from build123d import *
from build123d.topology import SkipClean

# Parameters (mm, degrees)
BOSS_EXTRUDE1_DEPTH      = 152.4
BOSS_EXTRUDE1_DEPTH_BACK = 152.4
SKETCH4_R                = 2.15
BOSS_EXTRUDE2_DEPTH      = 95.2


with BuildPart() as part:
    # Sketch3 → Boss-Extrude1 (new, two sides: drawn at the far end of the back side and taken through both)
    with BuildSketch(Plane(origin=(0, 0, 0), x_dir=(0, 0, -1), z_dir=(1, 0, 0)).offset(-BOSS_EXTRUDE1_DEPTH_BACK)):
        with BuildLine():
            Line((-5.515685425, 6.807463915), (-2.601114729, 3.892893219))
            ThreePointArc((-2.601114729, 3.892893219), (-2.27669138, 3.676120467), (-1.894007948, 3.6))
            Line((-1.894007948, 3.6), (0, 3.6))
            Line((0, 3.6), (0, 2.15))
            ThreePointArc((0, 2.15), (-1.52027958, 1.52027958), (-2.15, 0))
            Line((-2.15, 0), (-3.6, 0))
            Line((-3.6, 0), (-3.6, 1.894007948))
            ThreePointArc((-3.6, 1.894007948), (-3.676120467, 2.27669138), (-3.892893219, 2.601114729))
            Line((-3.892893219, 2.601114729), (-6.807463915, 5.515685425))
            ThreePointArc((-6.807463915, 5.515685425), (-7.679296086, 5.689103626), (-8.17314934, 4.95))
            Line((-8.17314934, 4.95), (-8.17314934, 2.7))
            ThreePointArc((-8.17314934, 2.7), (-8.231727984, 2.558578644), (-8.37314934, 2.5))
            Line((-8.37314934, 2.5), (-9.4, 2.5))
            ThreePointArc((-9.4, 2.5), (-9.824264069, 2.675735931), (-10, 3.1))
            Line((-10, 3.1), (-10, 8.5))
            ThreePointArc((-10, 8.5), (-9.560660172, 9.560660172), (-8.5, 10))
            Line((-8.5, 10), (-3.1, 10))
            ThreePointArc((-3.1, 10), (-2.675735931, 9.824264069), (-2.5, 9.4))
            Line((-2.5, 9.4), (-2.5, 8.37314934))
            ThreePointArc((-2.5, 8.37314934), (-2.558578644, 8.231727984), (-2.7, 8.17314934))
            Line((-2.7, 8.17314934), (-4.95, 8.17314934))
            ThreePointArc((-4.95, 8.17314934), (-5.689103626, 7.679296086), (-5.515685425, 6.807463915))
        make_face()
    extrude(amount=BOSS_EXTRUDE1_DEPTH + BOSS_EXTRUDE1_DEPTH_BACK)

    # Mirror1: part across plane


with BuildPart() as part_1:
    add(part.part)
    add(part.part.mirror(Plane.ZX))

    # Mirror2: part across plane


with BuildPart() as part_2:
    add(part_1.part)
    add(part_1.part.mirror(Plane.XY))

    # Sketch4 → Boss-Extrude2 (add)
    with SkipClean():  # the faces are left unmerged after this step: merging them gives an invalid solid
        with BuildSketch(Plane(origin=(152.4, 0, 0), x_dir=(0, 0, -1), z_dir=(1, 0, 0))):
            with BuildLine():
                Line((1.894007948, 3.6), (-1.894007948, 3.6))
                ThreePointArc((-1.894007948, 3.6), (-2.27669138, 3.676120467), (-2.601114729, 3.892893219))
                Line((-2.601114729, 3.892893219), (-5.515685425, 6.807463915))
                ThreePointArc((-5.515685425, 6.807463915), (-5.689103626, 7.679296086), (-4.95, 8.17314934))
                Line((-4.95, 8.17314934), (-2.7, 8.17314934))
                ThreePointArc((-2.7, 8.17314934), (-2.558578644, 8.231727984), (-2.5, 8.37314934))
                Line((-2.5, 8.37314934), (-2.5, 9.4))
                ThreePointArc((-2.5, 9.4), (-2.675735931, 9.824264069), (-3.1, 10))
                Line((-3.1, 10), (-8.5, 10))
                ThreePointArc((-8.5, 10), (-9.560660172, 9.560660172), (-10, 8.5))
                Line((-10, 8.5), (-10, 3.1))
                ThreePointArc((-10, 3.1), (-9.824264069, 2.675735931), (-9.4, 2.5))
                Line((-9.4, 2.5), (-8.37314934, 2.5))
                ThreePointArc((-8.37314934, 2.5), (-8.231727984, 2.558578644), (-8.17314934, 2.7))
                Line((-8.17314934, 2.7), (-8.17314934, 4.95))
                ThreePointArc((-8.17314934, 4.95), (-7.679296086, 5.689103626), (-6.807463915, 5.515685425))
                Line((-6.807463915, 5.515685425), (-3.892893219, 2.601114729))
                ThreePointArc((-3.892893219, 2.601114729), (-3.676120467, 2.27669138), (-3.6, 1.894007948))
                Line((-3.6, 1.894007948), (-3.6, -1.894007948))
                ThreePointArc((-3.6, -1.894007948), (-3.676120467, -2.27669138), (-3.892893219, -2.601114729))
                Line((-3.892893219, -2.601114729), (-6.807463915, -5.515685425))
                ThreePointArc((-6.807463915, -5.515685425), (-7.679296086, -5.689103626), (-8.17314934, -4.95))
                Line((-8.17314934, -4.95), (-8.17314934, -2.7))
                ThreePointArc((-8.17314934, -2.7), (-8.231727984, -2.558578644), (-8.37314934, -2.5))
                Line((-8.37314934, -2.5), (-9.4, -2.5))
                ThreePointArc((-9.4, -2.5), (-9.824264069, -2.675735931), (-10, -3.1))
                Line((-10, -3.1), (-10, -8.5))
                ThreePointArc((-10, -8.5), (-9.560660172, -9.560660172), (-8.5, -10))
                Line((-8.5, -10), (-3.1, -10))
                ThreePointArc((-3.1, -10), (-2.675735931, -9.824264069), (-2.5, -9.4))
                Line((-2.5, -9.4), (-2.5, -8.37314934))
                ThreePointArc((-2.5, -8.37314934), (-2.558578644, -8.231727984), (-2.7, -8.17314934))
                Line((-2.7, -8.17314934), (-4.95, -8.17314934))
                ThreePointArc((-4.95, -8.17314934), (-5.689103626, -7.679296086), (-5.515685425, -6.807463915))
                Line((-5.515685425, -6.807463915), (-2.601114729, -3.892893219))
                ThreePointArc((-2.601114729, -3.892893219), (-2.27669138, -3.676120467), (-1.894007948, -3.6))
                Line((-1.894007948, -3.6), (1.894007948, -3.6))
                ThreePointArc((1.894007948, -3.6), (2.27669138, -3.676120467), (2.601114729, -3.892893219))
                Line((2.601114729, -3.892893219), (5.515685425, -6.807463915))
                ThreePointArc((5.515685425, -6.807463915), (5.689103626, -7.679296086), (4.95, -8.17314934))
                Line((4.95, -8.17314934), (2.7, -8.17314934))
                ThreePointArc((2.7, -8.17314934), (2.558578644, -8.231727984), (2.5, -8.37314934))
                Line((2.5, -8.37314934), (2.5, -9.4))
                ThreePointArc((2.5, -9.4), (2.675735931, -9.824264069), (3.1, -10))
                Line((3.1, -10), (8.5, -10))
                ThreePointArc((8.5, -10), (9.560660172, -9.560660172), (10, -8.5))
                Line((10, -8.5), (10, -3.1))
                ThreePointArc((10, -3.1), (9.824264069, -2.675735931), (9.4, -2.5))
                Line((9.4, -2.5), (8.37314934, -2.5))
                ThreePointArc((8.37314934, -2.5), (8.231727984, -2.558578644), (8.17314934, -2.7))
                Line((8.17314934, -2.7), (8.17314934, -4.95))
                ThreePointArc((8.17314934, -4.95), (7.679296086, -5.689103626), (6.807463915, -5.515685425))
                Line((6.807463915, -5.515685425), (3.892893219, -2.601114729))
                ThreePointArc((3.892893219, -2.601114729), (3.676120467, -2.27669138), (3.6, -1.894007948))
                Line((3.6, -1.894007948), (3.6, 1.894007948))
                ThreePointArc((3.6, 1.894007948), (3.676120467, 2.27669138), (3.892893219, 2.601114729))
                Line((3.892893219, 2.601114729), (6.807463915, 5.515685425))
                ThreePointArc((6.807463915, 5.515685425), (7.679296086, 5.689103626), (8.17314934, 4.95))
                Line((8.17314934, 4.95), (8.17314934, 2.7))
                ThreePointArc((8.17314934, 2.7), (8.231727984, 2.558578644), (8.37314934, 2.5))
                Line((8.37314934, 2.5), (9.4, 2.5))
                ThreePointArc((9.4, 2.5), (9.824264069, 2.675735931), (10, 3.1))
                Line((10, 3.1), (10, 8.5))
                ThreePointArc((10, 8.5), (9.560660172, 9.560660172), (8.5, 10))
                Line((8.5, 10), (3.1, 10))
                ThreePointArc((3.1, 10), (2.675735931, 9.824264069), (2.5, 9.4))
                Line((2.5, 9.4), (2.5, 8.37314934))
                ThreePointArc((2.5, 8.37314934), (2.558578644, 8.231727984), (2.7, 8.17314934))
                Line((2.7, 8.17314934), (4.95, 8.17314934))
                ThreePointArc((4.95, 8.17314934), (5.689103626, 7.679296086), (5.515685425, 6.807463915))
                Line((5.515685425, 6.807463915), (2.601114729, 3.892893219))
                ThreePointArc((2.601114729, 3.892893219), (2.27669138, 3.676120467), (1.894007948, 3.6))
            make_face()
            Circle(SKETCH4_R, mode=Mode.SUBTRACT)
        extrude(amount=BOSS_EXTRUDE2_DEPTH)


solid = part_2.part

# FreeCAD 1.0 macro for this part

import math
import FreeCAD as App
import Part
import Sketcher

V = App.Vector
Q = App.Units.Quantity

doc = App.newDocument("Part")
body = doc.addObject("PartDesign::Body", "Body")

# Sketch on YZ plane
sketch1 = body.newObject("Sketcher::SketchObject", "Sketch")
sketch1.AttachmentSupport = (doc.getObject("YZ_Plane"), [""])
sketch1.MapMode = "FlatFace"
sketch1.addGeometry([
    Part.LineSegment(V(3.89, 2.6, 0), V(6.81, 5.52, 0)),  # 0
    Part.ArcOfCircle(Part.Circle(V(7.37, 4.95, 0), V(0, 0, 1), 0.8), math.radians(0), math.radians(135)),  # 1
    Part.LineSegment(V(8.17, 4.95, 0), V(8.17, 2.7, 0)),  # 2
    Part.ArcOfCircle(Part.Circle(V(8.37, 2.7, 0), V(0, 0, 1), 0.2), math.radians(-180), math.radians(-90)),  # 3
    Part.LineSegment(V(8.37, 2.5, 0), V(9.4, 2.5, 0)),  # 4
    Part.ArcOfCircle(Part.Circle(V(9.4, 3.1, 0), V(0, 0, 1), 0.6), math.radians(-90), math.radians(0)),  # 5
    Part.LineSegment(V(10, 3.1, 0), V(10, 8.5, 0)),  # 6
    Part.ArcOfCircle(Part.Circle(V(8.5, 8.5, 0), V(0, 0, 1), 1.5), math.radians(0), math.radians(90)),  # 7
    Part.LineSegment(V(8.5, 10, 0), V(3.1, 10, 0)),  # 8
    Part.ArcOfCircle(Part.Circle(V(3.1, 9.4, 0), V(0, 0, 1), 0.6), math.radians(90), math.radians(180)),  # 9
    Part.LineSegment(V(2.5, 9.4, 0), V(2.5, 8.37, 0)),  # 10
    Part.ArcOfCircle(Part.Circle(V(2.7, 8.37, 0), V(0, 0, 1), 0.2), math.radians(-180), math.radians(-90)),  # 11
    Part.LineSegment(V(2.7, 8.17, 0), V(4.95, 8.17, 0)),  # 12
    Part.ArcOfCircle(Part.Circle(V(4.95, 7.37, 0), V(0, 0, 1), 0.8), math.radians(-45), math.radians(90)),  # 13
    Part.LineSegment(V(5.52, 6.81, 0), V(2.6, 3.89, 0)),  # 14
    Part.ArcOfCircle(Part.Circle(V(1.89, 4.6, 0), V(0, 0, 1), 1), math.radians(-90), math.radians(-45)),  # 15
    Part.LineSegment(V(1.89, 3.6, 0), V(0, 3.6, 0)),  # 16
    Part.LineSegment(V(0, 3.6, 0), V(0, 2.15, 0)),  # 17
    Part.ArcOfCircle(Part.Circle(V(0, 0, 0), V(0, 0, 1), 2.15), math.radians(0), math.radians(90)),  # 18
    Part.LineSegment(V(2.15, 0, 0), V(3.6, 0, 0)),  # 19
    Part.LineSegment(V(3.6, 0, 0), V(3.6, 1.89, 0)),  # 20
    Part.ArcOfCircle(Part.Circle(V(4.6, 1.89, 0), V(0, 0, 1), 1), math.radians(135), math.radians(180)),  # 21
], False)
sketch1.addConstraint([
    Sketcher.Constraint("Tangent", 0, 2, 1, 2),
    Sketcher.Constraint("Tangent", 1, 1, 2, 1),
    Sketcher.Constraint("Tangent", 2, 2, 3, 1),
    Sketcher.Constraint("Tangent", 3, 2, 4, 1),
    Sketcher.Constraint("Tangent", 4, 2, 5, 1),
    Sketcher.Constraint("Tangent", 5, 2, 6, 1),
    Sketcher.Constraint("Tangent", 6, 2, 7, 1),
    Sketcher.Constraint("Tangent", 7, 2, 8, 1),
    Sketcher.Constraint("Tangent", 8, 2, 9, 1),
    Sketcher.Constraint("Tangent", 9, 2, 10, 1),
    Sketcher.Constraint("Tangent", 10, 2, 11, 1),
    Sketcher.Constraint("Tangent", 11, 2, 12, 1),
    Sketcher.Constraint("Tangent", 12, 2, 13, 2),
    Sketcher.Constraint("Tangent", 13, 1, 14, 1),
    Sketcher.Constraint("Tangent", 14, 2, 15, 2),
    Sketcher.Constraint("Tangent", 15, 1, 16, 1),
    Sketcher.Constraint("Coincident", 16, 2, 17, 1),
    Sketcher.Constraint("Coincident", 17, 2, 18, 2),
    Sketcher.Constraint("Coincident", 18, 1, 19, 1),
    Sketcher.Constraint("Coincident", 19, 2, 20, 1),
    Sketcher.Constraint("Tangent", 20, 2, 21, 2),
    Sketcher.Constraint("Tangent", 21, 1, 0, 1),
    Sketcher.Constraint("Vertical", 2),
    Sketcher.Constraint("Horizontal", 4),
    Sketcher.Constraint("Vertical", 6),
    Sketcher.Constraint("Horizontal", 8),
    Sketcher.Constraint("Vertical", 10),
    Sketcher.Constraint("Horizontal", 12),
    Sketcher.Constraint("Horizontal", 16),
    Sketcher.Constraint("Vertical", 17),
    Sketcher.Constraint("Horizontal", 19),
    Sketcher.Constraint("Vertical", 20),
    Sketcher.Constraint("Coincident", 18, 3, -1, 1),
    Sketcher.Constraint("Equal", 5, 9),
    Sketcher.Constraint("Equal", 3, 11),
    Sketcher.Constraint("Equal", 1, 13),
    Sketcher.Constraint("Equal", 15, 21),
    Sketcher.Constraint("PointOnObject", 16, 2, -2),
    Sketcher.Constraint("PointOnObject", 18, 1, -1),
    Sketcher.Constraint("Parallel", 0, 14),
    Sketcher.Constraint("Equal", 12, 2),
    Sketcher.Constraint("Equal", 8, 6),
    Sketcher.Constraint("Equal", 4, 10),
    Sketcher.Constraint("Equal", 19, 17),
    Sketcher.Constraint("Equal", 16, 20),
    Sketcher.Constraint("Equal", 0, 14),
    Sketcher.Constraint("Radius", 15, Q("1 mm")),
    Sketcher.Constraint("Radius", 1, Q("0.8 mm")),
    Sketcher.Constraint("Radius", 3, Q("0.2 mm")),
    Sketcher.Constraint("Radius", 5, Q("0.6 mm")),
    Sketcher.Constraint("Radius", 7, Q("1.5 mm")),
    Sketcher.Constraint("Radius", 18, Q("2.15 mm")),
    Sketcher.Constraint("DistanceX", 8, 2, 8, 1, Q("5.4 mm")),
    Sketcher.Constraint("DistanceX", -1, 1, 5, 2, Q("10 mm")),
    Sketcher.Constraint("DistanceX", 12, 1, 12, 2, Q("2.25 mm")),
    Sketcher.Constraint("DistanceX", 19, 1, 19, 2, Q("1.45 mm")),
    Sketcher.Constraint("DistanceX", 4, 1, 4, 2, Q("1.026851 mm")),
])
pad1 = body.newObject("PartDesign::Pad", "Pad")
pad1.Profile = sketch1
pad1.Type = "TwoLengths"
pad1.Length = 152.4
pad1.Length2 = 152.4
body2 = doc.addObject("PartDesign::Body", "Body001")
doc.recompute()

body2.BaseFeature = body
doc.recompute()

mirroring = doc.addObject("Part::Mirroring", "Mirroring")
mirroring.Source = body
mirroring.Base = V(0, 0, 0)
mirroring.Normal = V(0, 1, 0)
body3 = doc.addObject("PartDesign::Body", "Body002")
body3.BaseFeature = mirroring
boolean = body2.newObject("PartDesign::Boolean", "Boolean")
boolean.Type = "Fuse"
boolean.addObjects([body3])
doc.recompute()
body4 = doc.addObject("PartDesign::Body", "Body003")
doc.recompute()

body4.BaseFeature = body2
doc.recompute()

mirroring2 = doc.addObject("Part::Mirroring", "Mirroring001")
mirroring2.Source = body2
mirroring2.Base = V(0, 0, 0)
mirroring2.Normal = V(0, 0, 1)
body5 = doc.addObject("PartDesign::Body", "Body004")
body5.BaseFeature = mirroring2
boolean2 = body4.newObject("PartDesign::Boolean", "Boolean001")
boolean2.Type = "Fuse"
boolean2.addObjects([body5])
doc.recompute()

# Sketch on YZ plane
sketch2 = body4.newObject("Sketcher::SketchObject", "Sketch001")
sketch2.AttachmentSupport = (doc.getObject("YZ_Plane003"), [""])
sketch2.MapMode = "FlatFace"
sketch2.AttachmentOffset = App.Placement(V(0, 0, 152.4), App.Rotation())
sketch2.addGeometry([
    Part.LineSegment(V(3.6, -1.89, 0), V(3.6, 1.89, 0)),  # 0
    Part.ArcOfCircle(Part.Circle(V(4.6, 1.89, 0), V(0, 0, 1), 1), math.radians(135), math.radians(180)),  # 1
    Part.LineSegment(V(3.89, 2.6, 0), V(6.81, 5.52, 0)),  # 2
    Part.ArcOfCircle(Part.Circle(V(7.37, 4.95, 0), V(0, 0, 1), 0.8), math.radians(0), math.radians(135)),  # 3
    Part.LineSegment(V(8.17, 4.95, 0), V(8.17, 2.7, 0)),  # 4
    Part.ArcOfCircle(Part.Circle(V(8.37, 2.7, 0), V(0, 0, 1), 0.2), math.radians(-180), math.radians(-90)),  # 5
    Part.LineSegment(V(8.37, 2.5, 0), V(9.4, 2.5, 0)),  # 6
    Part.ArcOfCircle(Part.Circle(V(9.4, 3.1, 0), V(0, 0, 1), 0.6), math.radians(-90), math.radians(0)),  # 7
    Part.LineSegment(V(10, 3.1, 0), V(10, 8.5, 0)),  # 8
    Part.ArcOfCircle(Part.Circle(V(8.5, 8.5, 0), V(0, 0, 1), 1.5), math.radians(0), math.radians(90)),  # 9
    Part.LineSegment(V(8.5, 10, 0), V(3.1, 10, 0)),  # 10
    Part.ArcOfCircle(Part.Circle(V(3.1, 9.4, 0), V(0, 0, 1), 0.6), math.radians(90), math.radians(180)),  # 11
    Part.LineSegment(V(2.5, 9.4, 0), V(2.5, 8.37, 0)),  # 12
    Part.ArcOfCircle(Part.Circle(V(2.7, 8.37, 0), V(0, 0, 1), 0.2), math.radians(-180), math.radians(-90)),  # 13
    Part.LineSegment(V(2.7, 8.17, 0), V(4.95, 8.17, 0)),  # 14
    Part.ArcOfCircle(Part.Circle(V(4.95, 7.37, 0), V(0, 0, 1), 0.8), math.radians(-45), math.radians(90)),  # 15
    Part.LineSegment(V(5.52, 6.81, 0), V(2.6, 3.89, 0)),  # 16
    Part.ArcOfCircle(Part.Circle(V(1.89, 4.6, 0), V(0, 0, 1), 1), math.radians(-90), math.radians(-45)),  # 17
    Part.LineSegment(V(1.89, 3.6, 0), V(-1.89, 3.6, 0)),  # 18
    Part.ArcOfCircle(Part.Circle(V(-1.89, 4.6, 0), V(0, 0, 1), 1), math.radians(-135), math.radians(-90)),  # 19
    Part.LineSegment(V(-2.6, 3.89, 0), V(-5.52, 6.81, 0)),  # 20
    Part.ArcOfCircle(Part.Circle(V(-4.95, 7.37, 0), V(0, 0, 1), 0.8), math.radians(90), math.radians(225)),  # 21
    Part.LineSegment(V(-4.95, 8.17, 0), V(-2.7, 8.17, 0)),  # 22
    Part.ArcOfCircle(Part.Circle(V(-2.7, 8.37, 0), V(0, 0, 1), 0.2), math.radians(-90), math.radians(0)),  # 23
    Part.LineSegment(V(-2.5, 8.37, 0), V(-2.5, 9.4, 0)),  # 24
    Part.ArcOfCircle(Part.Circle(V(-3.1, 9.4, 0), V(0, 0, 1), 0.6), math.radians(0), math.radians(90)),  # 25
    Part.LineSegment(V(-3.1, 10, 0), V(-8.5, 10, 0)),  # 26
    Part.ArcOfCircle(Part.Circle(V(-8.5, 8.5, 0), V(0, 0, 1), 1.5), math.radians(90), math.radians(180)),  # 27
    Part.LineSegment(V(-10, 8.5, 0), V(-10, 3.1, 0)),  # 28
    Part.ArcOfCircle(Part.Circle(V(-9.4, 3.1, 0), V(0, 0, 1), 0.6), math.radians(180), math.radians(270)),  # 29
    Part.LineSegment(V(-9.4, 2.5, 0), V(-8.37, 2.5, 0)),  # 30
    Part.ArcOfCircle(Part.Circle(V(-8.37, 2.7, 0), V(0, 0, 1), 0.2), math.radians(-90), math.radians(0)),  # 31
    Part.LineSegment(V(-8.17, 2.7, 0), V(-8.17, 4.95, 0)),  # 32
    Part.ArcOfCircle(Part.Circle(V(-7.37, 4.95, 0), V(0, 0, 1), 0.8), math.radians(45), math.radians(180)),  # 33
    Part.LineSegment(V(-6.81, 5.52, 0), V(-3.89, 2.6, 0)),  # 34
    Part.ArcOfCircle(Part.Circle(V(-4.6, 1.89, 0), V(0, 0, 1), 1), math.radians(0), math.radians(45)),  # 35
    Part.LineSegment(V(-3.6, 1.89, 0), V(-3.6, -1.89, 0)),  # 36
    Part.ArcOfCircle(Part.Circle(V(-4.6, -1.89, 0), V(0, 0, 1), 1), math.radians(-45), math.radians(0)),  # 37
    Part.LineSegment(V(-3.89, -2.6, 0), V(-6.81, -5.52, 0)),  # 38
    Part.ArcOfCircle(Part.Circle(V(-7.37, -4.95, 0), V(0, 0, 1), 0.8), math.radians(180), math.radians(315)),  # 39
    Part.LineSegment(V(-8.17, -4.95, 0), V(-8.17, -2.7, 0)),  # 40
    Part.ArcOfCircle(Part.Circle(V(-8.37, -2.7, 0), V(0, 0, 1), 0.2), math.radians(0), math.radians(90)),  # 41
    Part.LineSegment(V(-8.37, -2.5, 0), V(-9.4, -2.5, 0)),  # 42
    Part.ArcOfCircle(Part.Circle(V(-9.4, -3.1, 0), V(0, 0, 1), 0.6), math.radians(90), math.radians(180)),  # 43
    Part.LineSegment(V(-10, -3.1, 0), V(-10, -8.5, 0)),  # 44
    Part.ArcOfCircle(Part.Circle(V(-8.5, -8.5, 0), V(0, 0, 1), 1.5), math.radians(180), math.radians(270)),  # 45
    Part.LineSegment(V(-8.5, -10, 0), V(-3.1, -10, 0)),  # 46
    Part.ArcOfCircle(Part.Circle(V(-3.1, -9.4, 0), V(0, 0, 1), 0.6), math.radians(-90), math.radians(0)),  # 47
    Part.LineSegment(V(-2.5, -9.4, 0), V(-2.5, -8.37, 0)),  # 48
    Part.ArcOfCircle(Part.Circle(V(-2.7, -8.37, 0), V(0, 0, 1), 0.2), math.radians(0), math.radians(90)),  # 49
    Part.LineSegment(V(-2.7, -8.17, 0), V(-4.95, -8.17, 0)),  # 50
    Part.ArcOfCircle(Part.Circle(V(-4.95, -7.37, 0), V(0, 0, 1), 0.8), math.radians(135), math.radians(270)),  # 51
    Part.LineSegment(V(-5.52, -6.81, 0), V(-2.6, -3.89, 0)),  # 52
    Part.ArcOfCircle(Part.Circle(V(-1.89, -4.6, 0), V(0, 0, 1), 1), math.radians(90), math.radians(135)),  # 53
    Part.LineSegment(V(-1.89, -3.6, 0), V(1.89, -3.6, 0)),  # 54
    Part.ArcOfCircle(Part.Circle(V(1.89, -4.6, 0), V(0, 0, 1), 1), math.radians(45), math.radians(90)),  # 55
    Part.LineSegment(V(2.6, -3.89, 0), V(5.52, -6.81, 0)),  # 56
    Part.ArcOfCircle(Part.Circle(V(4.95, -7.37, 0), V(0, 0, 1), 0.8), math.radians(-90), math.radians(45)),  # 57
    Part.LineSegment(V(4.95, -8.17, 0), V(2.7, -8.17, 0)),  # 58
    Part.ArcOfCircle(Part.Circle(V(2.7, -8.37, 0), V(0, 0, 1), 0.2), math.radians(90), math.radians(180)),  # 59
    Part.LineSegment(V(2.5, -8.37, 0), V(2.5, -9.4, 0)),  # 60
    Part.ArcOfCircle(Part.Circle(V(3.1, -9.4, 0), V(0, 0, 1), 0.6), math.radians(180), math.radians(270)),  # 61
    Part.LineSegment(V(3.1, -10, 0), V(8.5, -10, 0)),  # 62
    Part.ArcOfCircle(Part.Circle(V(8.5, -8.5, 0), V(0, 0, 1), 1.5), math.radians(-90), math.radians(0)),  # 63
    Part.LineSegment(V(10, -8.5, 0), V(10, -3.1, 0)),  # 64
    Part.ArcOfCircle(Part.Circle(V(9.4, -3.1, 0), V(0, 0, 1), 0.6), math.radians(0), math.radians(90)),  # 65
    Part.LineSegment(V(9.4, -2.5, 0), V(8.37, -2.5, 0)),  # 66
    Part.ArcOfCircle(Part.Circle(V(8.37, -2.7, 0), V(0, 0, 1), 0.2), math.radians(90), math.radians(180)),  # 67
    Part.LineSegment(V(8.17, -2.7, 0), V(8.17, -4.95, 0)),  # 68
    Part.ArcOfCircle(Part.Circle(V(7.37, -4.95, 0), V(0, 0, 1), 0.8), math.radians(-135), math.radians(0)),  # 69
    Part.LineSegment(V(6.81, -5.52, 0), V(3.89, -2.6, 0)),  # 70
    Part.ArcOfCircle(Part.Circle(V(4.6, -1.89, 0), V(0, 0, 1), 1), math.radians(180), math.radians(225)),  # 71
    Part.Circle(V(0, 0, 0), V(0, 0, 1), 2.15),  # 72
], False)
sketch2.addConstraint([
    Sketcher.Constraint("Tangent", 0, 2, 1, 2),
    Sketcher.Constraint("Tangent", 1, 1, 2, 1),
    Sketcher.Constraint("Tangent", 2, 2, 3, 2),
    Sketcher.Constraint("Tangent", 3, 1, 4, 1),
    Sketcher.Constraint("Tangent", 4, 2, 5, 1),
    Sketcher.Constraint("Tangent", 5, 2, 6, 1),
    Sketcher.Constraint("Tangent", 6, 2, 7, 1),
    Sketcher.Constraint("Tangent", 7, 2, 8, 1),
    Sketcher.Constraint("Tangent", 8, 2, 9, 1),
    Sketcher.Constraint("Tangent", 9, 2, 10, 1),
    Sketcher.Constraint("Tangent", 10, 2, 11, 1),
    Sketcher.Constraint("Tangent", 11, 2, 12, 1),
    Sketcher.Constraint("Tangent", 12, 2, 13, 1),
    Sketcher.Constraint("Tangent", 13, 2, 14, 1),
    Sketcher.Constraint("Tangent", 14, 2, 15, 2),
    Sketcher.Constraint("Tangent", 15, 1, 16, 1),
    Sketcher.Constraint("Tangent", 16, 2, 17, 2),
    Sketcher.Constraint("Tangent", 17, 1, 18, 1),
    Sketcher.Constraint("Tangent", 18, 2, 19, 2),
    Sketcher.Constraint("Tangent", 19, 1, 20, 1),
    Sketcher.Constraint("Tangent", 20, 2, 21, 2),
    Sketcher.Constraint("Tangent", 21, 1, 22, 1),
    Sketcher.Constraint("Tangent", 22, 2, 23, 1),
    Sketcher.Constraint("Tangent", 23, 2, 24, 1),
    Sketcher.Constraint("Tangent", 24, 2, 25, 1),
    Sketcher.Constraint("Tangent", 25, 2, 26, 1),
    Sketcher.Constraint("Tangent", 26, 2, 27, 1),
    Sketcher.Constraint("Tangent", 27, 2, 28, 1),
    Sketcher.Constraint("Tangent", 28, 2, 29, 1),
    Sketcher.Constraint("Tangent", 29, 2, 30, 1),
    Sketcher.Constraint("Tangent", 30, 2, 31, 1),
    Sketcher.Constraint("Tangent", 31, 2, 32, 1),
    Sketcher.Constraint("Tangent", 32, 2, 33, 2),
    Sketcher.Constraint("Tangent", 33, 1, 34, 1),
    Sketcher.Constraint("Tangent", 34, 2, 35, 2),
    Sketcher.Constraint("Tangent", 35, 1, 36, 1),
    Sketcher.Constraint("Tangent", 36, 2, 37, 2),
    Sketcher.Constraint("Tangent", 37, 1, 38, 1),
    Sketcher.Constraint("Tangent", 38, 2, 39, 2),
    Sketcher.Constraint("Tangent", 39, 1, 40, 1),
    Sketcher.Constraint("Tangent", 40, 2, 41, 1),
    Sketcher.Constraint("Tangent", 41, 2, 42, 1),
    Sketcher.Constraint("Tangent", 42, 2, 43, 1),
    Sketcher.Constraint("Tangent", 43, 2, 44, 1),
    Sketcher.Constraint("Tangent", 44, 2, 45, 1),
    Sketcher.Constraint("Tangent", 45, 2, 46, 1),
    Sketcher.Constraint("Tangent", 46, 2, 47, 1),
    Sketcher.Constraint("Tangent", 47, 2, 48, 1),
    Sketcher.Constraint("Tangent", 48, 2, 49, 1),
    Sketcher.Constraint("Tangent", 49, 2, 50, 1),
    Sketcher.Constraint("Tangent", 50, 2, 51, 2),
    Sketcher.Constraint("Tangent", 51, 1, 52, 1),
    Sketcher.Constraint("Tangent", 52, 2, 53, 2),
    Sketcher.Constraint("Tangent", 53, 1, 54, 1),
    Sketcher.Constraint("Tangent", 54, 2, 55, 2),
    Sketcher.Constraint("Tangent", 55, 1, 56, 1),
    Sketcher.Constraint("Tangent", 56, 2, 57, 2),
    Sketcher.Constraint("Tangent", 57, 1, 58, 1),
    Sketcher.Constraint("Tangent", 58, 2, 59, 1),
    Sketcher.Constraint("Tangent", 59, 2, 60, 1),
    Sketcher.Constraint("Tangent", 60, 2, 61, 1),
    Sketcher.Constraint("Tangent", 61, 2, 62, 1),
    Sketcher.Constraint("Tangent", 62, 2, 63, 1),
    Sketcher.Constraint("Tangent", 63, 2, 64, 1),
    Sketcher.Constraint("Tangent", 64, 2, 65, 1),
    Sketcher.Constraint("Tangent", 65, 2, 66, 1),
    Sketcher.Constraint("Tangent", 66, 2, 67, 1),
    Sketcher.Constraint("Tangent", 67, 2, 68, 1),
    Sketcher.Constraint("Tangent", 68, 2, 69, 2),
    Sketcher.Constraint("Tangent", 69, 1, 70, 1),
    Sketcher.Constraint("Tangent", 70, 2, 71, 2),
    Sketcher.Constraint("Tangent", 71, 1, 0, 1),
    Sketcher.Constraint("Vertical", 0),
    Sketcher.Constraint("Vertical", 4),
    Sketcher.Constraint("Horizontal", 6),
    Sketcher.Constraint("Vertical", 8),
    Sketcher.Constraint("Horizontal", 10),
    Sketcher.Constraint("Vertical", 12),
    Sketcher.Constraint("Horizontal", 14),
    Sketcher.Constraint("Horizontal", 18),
    Sketcher.Constraint("Horizontal", 22),
    Sketcher.Constraint("Vertical", 24),
    Sketcher.Constraint("Horizontal", 26),
    Sketcher.Constraint("Vertical", 28),
    Sketcher.Constraint("Horizontal", 30),
    Sketcher.Constraint("Vertical", 32),
    Sketcher.Constraint("Vertical", 36),
    Sketcher.Constraint("Vertical", 40),
    Sketcher.Constraint("Horizontal", 42),
    Sketcher.Constraint("Vertical", 44),
    Sketcher.Constraint("Horizontal", 46),
    Sketcher.Constraint("Vertical", 48),
    Sketcher.Constraint("Horizontal", 50),
    Sketcher.Constraint("Horizontal", 54),
    Sketcher.Constraint("Horizontal", 58),
    Sketcher.Constraint("Vertical", 60),
    Sketcher.Constraint("Horizontal", 62),
    Sketcher.Constraint("Vertical", 64),
    Sketcher.Constraint("Horizontal", 66),
    Sketcher.Constraint("Vertical", 68),
    Sketcher.Constraint("Coincident", 72, 3, -1, 1),
    Sketcher.Constraint("Equal", 7, 11),
    Sketcher.Constraint("Equal", 5, 13),
    Sketcher.Constraint("Equal", 3, 15),
    Sketcher.Constraint("Equal", 1, 17),
    Sketcher.Constraint("Equal", 17, 19),
    Sketcher.Constraint("Equal", 15, 21),
    Sketcher.Constraint("Equal", 13, 23),
    Sketcher.Constraint("Equal", 11, 25),
    Sketcher.Constraint("Equal", 9, 27),
    Sketcher.Constraint("Equal", 25, 29),
    Sketcher.Constraint("Equal", 23, 31),
    Sketcher.Constraint("Equal", 21, 33),
    Sketcher.Constraint("Equal", 19, 35),
    Sketcher.Constraint("Equal", 35, 37),
    Sketcher.Constraint("Equal", 33, 39),
    Sketcher.Constraint("Equal", 31, 41),
    Sketcher.Constraint("Equal", 29, 43),
    Sketcher.Constraint("Equal", 27, 45),
    Sketcher.Constraint("Equal", 43, 47),
    Sketcher.Constraint("Equal", 41, 49),
    Sketcher.Constraint("Equal", 39, 51),
    Sketcher.Constraint("Equal", 37, 53),
    Sketcher.Constraint("Equal", 53, 55),
    Sketcher.Constraint("Equal", 51, 57),
    Sketcher.Constraint("Equal", 49, 59),
    Sketcher.Constraint("Equal", 47, 61),
    Sketcher.Constraint("Equal", 45, 63),
    Sketcher.Constraint("Equal", 61, 65),
    Sketcher.Constraint("Equal", 59, 67),
    Sketcher.Constraint("Equal", 57, 69),
    Sketcher.Constraint("Equal", 55, 71),
    Sketcher.Constraint("Symmetric", 1, 3, 37, 3, -1, 1),
    Sketcher.Constraint("Symmetric", 3, 3, 39, 3, -1, 1),
    Sketcher.Constraint("Symmetric", 7, 3, 43, 3, -1, 1),
    Sketcher.Constraint("Symmetric", 11, 3, 47, 3, -1, 1),
    Sketcher.Constraint("Symmetric", 15, 3, 51, 3, -1, 1),
    Sketcher.Constraint("Symmetric", 17, 3, 53, 3, -1, 1),
    Sketcher.Constraint("Symmetric", 21, 3, 57, 3, -1, 1),
    Sketcher.Constraint("Symmetric", 25, 3, 61, 3, -1, 1),
    Sketcher.Constraint("Symmetric", 29, 3, 65, 3, -1, 1),
    Sketcher.Constraint("Symmetric", 33, 3, 69, 3, -1, 1),
    Sketcher.Constraint("Symmetric", 15, 3, 21, 3, -2),
    Sketcher.Constraint("Symmetric", 11, 3, 25, 3, -2),
    Sketcher.Constraint("Symmetric", 7, 3, 29, 3, -2),
    Sketcher.Constraint("Symmetric", 3, 3, 33, 3, -2),
    Sketcher.Constraint("Parallel", 2, 16),
    Sketcher.Constraint("Perpendicular", 16, 20),
    Sketcher.Constraint("Parallel", 20, 34),
    Sketcher.Constraint("Perpendicular", 52, 56),
    Sketcher.Constraint("Parallel", 56, 70),
    Sketcher.Constraint("Horizontal", 1, 3, 35, 3),
    Sketcher.Constraint("Equal", 54, 0),
    Sketcher.Constraint("Equal", 58, 4),
    Sketcher.Constraint("Equal", 62, 8),
    Sketcher.Constraint("Equal", 66, 12),
    Sketcher.Constraint("Equal", 2, 16),
    Sketcher.Constraint("Radius", 1, Q("1 mm")),
    Sketcher.Constraint("Diameter", 72, Q("4.3 mm")),
    Sketcher.Constraint("Radius", 3, Q("0.8 mm")),
    Sketcher.Constraint("Radius", 5, Q("0.2 mm")),
    Sketcher.Constraint("Radius", 7, Q("0.6 mm")),
    Sketcher.Constraint("Radius", 9, Q("1.5 mm")),
    Sketcher.Constraint("DistanceX", 10, 2, 10, 1, Q("5.4 mm")),
    Sketcher.Constraint("DistanceX", -1, 1, 7, 2, Q("10 mm")),
    Sketcher.Constraint("DistanceX", 14, 1, 14, 2, Q("2.25 mm")),
    Sketcher.Constraint("DistanceX", -1, 1, 1, 3, Q("4.6 mm")),
    Sketcher.Constraint("DistanceX", 6, 1, 6, 2, Q("1.026851 mm")),
])
pad2 = body4.newObject("PartDesign::Pad", "Pad001")
pad2.Profile = sketch2
pad2.Length = 95.2
mirroring.Visibility = False
mirroring2.Visibility = False

doc.recompute()
